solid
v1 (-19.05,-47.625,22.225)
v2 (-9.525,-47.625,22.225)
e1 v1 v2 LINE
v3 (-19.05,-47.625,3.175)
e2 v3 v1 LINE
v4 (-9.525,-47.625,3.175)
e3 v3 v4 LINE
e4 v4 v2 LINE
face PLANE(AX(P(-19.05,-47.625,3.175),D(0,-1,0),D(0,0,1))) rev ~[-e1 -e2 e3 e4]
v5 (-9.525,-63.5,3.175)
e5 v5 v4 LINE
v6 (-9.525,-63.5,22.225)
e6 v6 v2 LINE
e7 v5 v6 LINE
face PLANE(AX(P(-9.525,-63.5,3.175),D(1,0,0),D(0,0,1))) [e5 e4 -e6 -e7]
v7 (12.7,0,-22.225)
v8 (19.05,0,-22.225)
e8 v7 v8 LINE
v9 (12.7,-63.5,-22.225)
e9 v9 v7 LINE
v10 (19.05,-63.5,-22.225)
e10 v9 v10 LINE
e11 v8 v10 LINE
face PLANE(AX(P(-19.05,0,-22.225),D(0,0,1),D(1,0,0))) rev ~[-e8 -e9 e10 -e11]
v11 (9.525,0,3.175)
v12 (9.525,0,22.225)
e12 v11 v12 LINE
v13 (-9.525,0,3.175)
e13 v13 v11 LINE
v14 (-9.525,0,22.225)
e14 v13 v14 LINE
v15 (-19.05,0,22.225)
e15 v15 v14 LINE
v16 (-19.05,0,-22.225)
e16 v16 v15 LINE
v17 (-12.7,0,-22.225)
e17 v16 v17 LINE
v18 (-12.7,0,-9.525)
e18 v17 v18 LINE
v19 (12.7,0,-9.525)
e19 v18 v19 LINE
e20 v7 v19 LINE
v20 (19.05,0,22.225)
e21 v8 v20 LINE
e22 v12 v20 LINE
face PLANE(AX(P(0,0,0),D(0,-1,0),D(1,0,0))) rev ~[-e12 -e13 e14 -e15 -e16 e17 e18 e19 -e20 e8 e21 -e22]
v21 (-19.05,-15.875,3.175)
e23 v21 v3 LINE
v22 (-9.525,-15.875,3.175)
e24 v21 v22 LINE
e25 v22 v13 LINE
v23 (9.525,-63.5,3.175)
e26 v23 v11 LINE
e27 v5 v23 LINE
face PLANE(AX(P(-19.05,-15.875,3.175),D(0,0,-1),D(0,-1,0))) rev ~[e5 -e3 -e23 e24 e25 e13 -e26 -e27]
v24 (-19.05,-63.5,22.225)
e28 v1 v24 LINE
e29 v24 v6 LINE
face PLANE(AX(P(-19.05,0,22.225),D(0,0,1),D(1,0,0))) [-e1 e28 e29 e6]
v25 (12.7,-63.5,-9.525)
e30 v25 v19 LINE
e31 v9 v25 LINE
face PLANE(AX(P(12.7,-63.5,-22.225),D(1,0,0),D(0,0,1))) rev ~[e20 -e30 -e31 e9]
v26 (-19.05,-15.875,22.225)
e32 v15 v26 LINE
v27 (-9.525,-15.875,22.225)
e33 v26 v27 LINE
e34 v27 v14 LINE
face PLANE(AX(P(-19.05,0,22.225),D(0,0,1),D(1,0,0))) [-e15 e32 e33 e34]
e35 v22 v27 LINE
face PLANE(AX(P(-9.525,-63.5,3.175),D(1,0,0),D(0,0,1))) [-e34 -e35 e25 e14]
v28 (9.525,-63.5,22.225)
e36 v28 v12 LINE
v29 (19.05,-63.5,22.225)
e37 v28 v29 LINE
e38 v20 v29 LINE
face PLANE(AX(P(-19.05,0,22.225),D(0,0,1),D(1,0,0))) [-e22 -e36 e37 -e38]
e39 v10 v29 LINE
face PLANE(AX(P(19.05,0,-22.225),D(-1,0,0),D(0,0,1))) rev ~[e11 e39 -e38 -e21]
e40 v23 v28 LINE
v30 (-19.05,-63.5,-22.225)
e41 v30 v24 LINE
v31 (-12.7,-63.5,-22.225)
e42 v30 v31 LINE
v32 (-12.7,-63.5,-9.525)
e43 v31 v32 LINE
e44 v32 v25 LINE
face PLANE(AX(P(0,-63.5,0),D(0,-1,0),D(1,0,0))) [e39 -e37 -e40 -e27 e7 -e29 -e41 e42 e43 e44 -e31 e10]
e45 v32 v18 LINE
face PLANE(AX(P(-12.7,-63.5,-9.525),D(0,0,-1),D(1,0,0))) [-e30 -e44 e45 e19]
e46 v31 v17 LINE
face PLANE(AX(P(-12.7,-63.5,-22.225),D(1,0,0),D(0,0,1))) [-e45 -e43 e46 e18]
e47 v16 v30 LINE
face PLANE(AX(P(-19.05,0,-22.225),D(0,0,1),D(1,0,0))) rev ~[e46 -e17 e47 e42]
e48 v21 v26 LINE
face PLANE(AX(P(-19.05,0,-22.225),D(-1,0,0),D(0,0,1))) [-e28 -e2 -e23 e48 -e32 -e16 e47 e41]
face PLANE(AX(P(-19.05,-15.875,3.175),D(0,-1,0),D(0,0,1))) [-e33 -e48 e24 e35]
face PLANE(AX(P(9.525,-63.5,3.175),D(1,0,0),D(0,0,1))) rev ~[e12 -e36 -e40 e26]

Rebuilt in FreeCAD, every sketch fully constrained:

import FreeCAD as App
import Part
import Sketcher
Q = App.Units.Quantity


def add_polygon(sketch, points):
    """Adds a closed chain of lines whose ends are joined by coincident constraints."""
    first, n = sketch.GeometryCount, len(points)
    for a, b in zip(points, points[1:] + points[:1]):
        sketch.addGeometry(Part.LineSegment(App.Vector(*a, 0), App.Vector(*b, 0)), False)
    for i in range(n):
        sketch.addConstraint(Sketcher.Constraint("Coincident", first + i, 2, first + (i + 1) % n, 1))

doc = App.newDocument("Part")
body = doc.addObject("PartDesign::Body", "Body")

sketch1 = doc.addObject("Sketcher::SketchObject", "Sketch")
body.addObject(sketch1)
sketch1.AttachmentSupport = (doc.XZ_Plane, [""])
sketch1.MapMode = "FlatFace"
add_polygon(sketch1, [(-19.05, 22.225), (-19.05, -22.225), (19.05, -22.225), (19.05, 22.225)])
sketch1.addConstraint(Sketcher.Constraint("Vertical", 0))
sketch1.addConstraint(Sketcher.Constraint("Horizontal", 1))
sketch1.addConstraint(Sketcher.Constraint("Vertical", 2))
sketch1.addConstraint(Sketcher.Constraint("Horizontal", 3))
sketch1.addConstraint(Sketcher.Constraint("Symmetric", 0, 2, 2, 2, -1, 1))
sketch1.addConstraint(Sketcher.Constraint("DistanceX", 1, 1, 1, 2, Q("1.5 in")))
sketch1.addConstraint(Sketcher.Constraint("DistanceY", 0, 2, 0, 1, Q("1.75 in")))
pad1 = doc.addObject("PartDesign::Pad", "Pad")
body.addObject(pad1)
pad1.Profile = sketch1
pad1.Length = Q("2.5 in")

sketch2 = doc.addObject("Sketcher::SketchObject", "Sketch001")
body.addObject(sketch2)
sketch2.AttachmentSupport = (doc.XZ_Plane, [""])
sketch2.MapMode = "FlatFace"
sketch2.AttachmentOffset = App.Placement(App.Vector(0, 0, 2.5 * 25.4), App.Rotation())
add_polygon(sketch2, [(-9.525, 22.225), (-9.525, 3.175), (9.525, 3.175), (9.525, 22.225)])
sketch2.addConstraint(Sketcher.Constraint("Vertical", 0))
sketch2.addConstraint(Sketcher.Constraint("Horizontal", 1))
sketch2.addConstraint(Sketcher.Constraint("Vertical", 2))
sketch2.addConstraint(Sketcher.Constraint("Horizontal", 3))
sketch2.addConstraint(Sketcher.Constraint("Equal", 3, 0))
sketch2.addConstraint(Sketcher.Constraint("DistanceX", 1, 1, 1, 2, Q("0.75 in")))
sketch2.addConstraint(Sketcher.Constraint("DistanceX", 0, 2, -1, 1, Q("0.375 in")))
sketch2.addConstraint(Sketcher.Constraint("DistanceY", -1, 1, 0, 2, Q("0.125 in")))
pocket1 = doc.addObject("PartDesign::Pocket", "Pocket")
body.addObject(pocket1)
pocket1.Profile = sketch2
pocket1.Type = "ThroughAll"

sketch3 = doc.addObject("Sketcher::SketchObject", "Sketch002")
body.addObject(sketch3)
sketch3.AttachmentSupport = (doc.XZ_Plane, [""])
sketch3.MapMode = "FlatFace"
sketch3.AttachmentOffset = App.Placement(App.Vector(0, 0, 2.5 * 25.4), App.Rotation())
add_polygon(sketch3, [(-12.7, -9.525), (-12.7, -22.225), (12.7, -22.225), (12.7, -9.525)])
sketch3.addConstraint(Sketcher.Constraint("Vertical", 0))
sketch3.addConstraint(Sketcher.Constraint("Horizontal", 1))
sketch3.addConstraint(Sketcher.Constraint("Vertical", 2))
sketch3.addConstraint(Sketcher.Constraint("Horizontal", 3))
sketch3.addConstraint(Sketcher.Constraint("DistanceX", 1, 1, 1, 2, Q("1 in")))
sketch3.addConstraint(Sketcher.Constraint("DistanceY", 0, 2, 0, 1, Q("0.5 in")))
sketch3.addConstraint(Sketcher.Constraint("DistanceX", 0, 2, -1, 1, Q("0.5 in")))
sketch3.addConstraint(Sketcher.Constraint("DistanceY", 0, 2, -1, 1, Q("0.875 in")))
pocket2 = doc.addObject("PartDesign::Pocket", "Pocket001")
body.addObject(pocket2)
pocket2.Profile = sketch3
pocket2.Type = "ThroughAll"

sketch4 = doc.addObject("Sketcher::SketchObject", "Sketch003")
body.addObject(sketch4)
sketch4.AttachmentSupport = (doc.YZ_Plane, [""])
sketch4.MapMode = "FlatFace"
sketch4.AttachmentOffset = App.Placement(App.Vector(0, 0, -0.75 * 25.4), App.Rotation())
add_polygon(sketch4, [(-15.875, 22.225), (-15.875, 3.175), (-47.625, 3.175), (-47.625, 22.225)])
sketch4.addConstraint(Sketcher.Constraint("Vertical", 0))
sketch4.addConstraint(Sketcher.Constraint("Horizontal", 1))
sketch4.addConstraint(Sketcher.Constraint("Vertical", 2))
sketch4.addConstraint(Sketcher.Constraint("Horizontal", 3))
sketch4.addConstraint(Sketcher.Constraint("DistanceX", 1, 2, 1, 1, Q("1.25 in")))
sketch4.addConstraint(Sketcher.Constraint("DistanceY", 0, 2, 0, 1, Q("0.75 in")))
sketch4.addConstraint(Sketcher.Constraint("DistanceX", 0, 2, -1, 1, Q("0.625 in")))
sketch4.addConstraint(Sketcher.Constraint("DistanceY", -1, 1, 0, 2, Q("0.125 in")))
pocket3 = doc.addObject("PartDesign::Pocket", "Pocket002")
body.addObject(pocket3)
pocket3.Profile = sketch4
pocket3.Length = Q("0.375 in")
pocket3.Reversed = True

doc.recompute()
